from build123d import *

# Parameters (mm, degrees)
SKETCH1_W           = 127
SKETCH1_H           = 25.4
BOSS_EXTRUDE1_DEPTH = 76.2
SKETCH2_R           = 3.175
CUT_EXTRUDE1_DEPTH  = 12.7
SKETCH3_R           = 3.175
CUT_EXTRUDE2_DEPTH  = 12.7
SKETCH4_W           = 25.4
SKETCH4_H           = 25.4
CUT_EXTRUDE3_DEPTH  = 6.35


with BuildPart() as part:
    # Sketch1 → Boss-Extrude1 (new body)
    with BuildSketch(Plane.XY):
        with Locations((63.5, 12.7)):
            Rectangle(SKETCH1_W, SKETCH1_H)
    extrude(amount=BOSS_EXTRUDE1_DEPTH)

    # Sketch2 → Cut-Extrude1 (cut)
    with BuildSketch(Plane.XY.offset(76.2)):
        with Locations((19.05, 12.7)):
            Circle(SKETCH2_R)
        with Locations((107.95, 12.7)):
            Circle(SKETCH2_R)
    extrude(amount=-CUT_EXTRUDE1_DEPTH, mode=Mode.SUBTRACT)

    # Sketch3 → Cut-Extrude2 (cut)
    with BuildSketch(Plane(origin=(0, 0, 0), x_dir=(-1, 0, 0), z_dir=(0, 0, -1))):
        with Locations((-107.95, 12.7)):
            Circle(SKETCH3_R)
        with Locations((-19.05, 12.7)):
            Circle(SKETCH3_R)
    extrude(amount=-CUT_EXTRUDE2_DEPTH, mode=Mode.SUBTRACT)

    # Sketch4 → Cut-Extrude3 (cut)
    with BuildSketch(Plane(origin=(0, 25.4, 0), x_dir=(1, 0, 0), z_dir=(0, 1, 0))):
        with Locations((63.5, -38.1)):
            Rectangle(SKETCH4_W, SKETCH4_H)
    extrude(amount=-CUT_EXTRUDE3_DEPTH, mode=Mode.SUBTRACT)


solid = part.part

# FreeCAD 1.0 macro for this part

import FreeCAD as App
import Part
import Sketcher
Q = App.Units.Quantity

doc = App.newDocument("Part")
body = doc.addObject("PartDesign::Body", "Body")

# Sketch on XY plane
sketch1 = doc.addObject("Sketcher::SketchObject", "Sketch")
body.addObject(sketch1)
sketch1.AttachmentSupport = (doc.XY_Plane, [""])
sketch1.MapMode = "FlatFace"
sketch1.addGeometry([
    Part.LineSegment(App.Vector(0, 25, 0), App.Vector(0, 0, 0)),
    Part.LineSegment(App.Vector(0, 0, 0), App.Vector(127, 0, 0)),
    Part.LineSegment(App.Vector(127, 0, 0), App.Vector(127, 25, 0)),
    Part.LineSegment(App.Vector(127, 25, 0), App.Vector(0, 25, 0)),
], False)
sketch1.addConstraint([
    Sketcher.Constraint("Coincident", 0, 2, 1, 1),
    Sketcher.Constraint("Coincident", 1, 2, 2, 1),
    Sketcher.Constraint("Coincident", 2, 2, 3, 1),
    Sketcher.Constraint("Coincident", 3, 2, 0, 1),
    Sketcher.Constraint("Vertical", 0),
    Sketcher.Constraint("Horizontal", 1),
    Sketcher.Constraint("Vertical", 2),
    Sketcher.Constraint("Horizontal", 3),
    Sketcher.Constraint("Coincident", 0, 2, -1, 1),
    Sketcher.Constraint("DistanceX", 1, 1, 1, 2, Q("5 in")),
    Sketcher.Constraint("DistanceY", 0, 2, 0, 1, Q("1 in")),
])
pad1 = doc.addObject("PartDesign::Pad", "Pad")
body.addObject(pad1)
pad1.Profile = sketch1
pad1.Length = Q("3 in")

# Sketch on XY plane
sketch2 = doc.addObject("Sketcher::SketchObject", "Sketch001")
body.addObject(sketch2)
sketch2.AttachmentSupport = (doc.XY_Plane, [""])
sketch2.MapMode = "FlatFace"
sketch2.AttachmentOffset = App.Placement(App.Vector(0, 0, 3 * 25.4), App.Rotation())
sketch2.addGeometry([
    Part.Circle(App.Vector(19.1, 12.7, 0), App.Vector(0, 0, 1), 3.2),
    Part.Circle(App.Vector(108, 12.7, 0), App.Vector(0, 0, 1), 3.2),
], False)
sketch2.addConstraint([
    Sketcher.Constraint("Equal", 0, 1),
    Sketcher.Constraint("Horizontal", 0, 3, 1, 3),
    Sketcher.Constraint("Diameter", 0, Q("0.25 in")),
    Sketcher.Constraint("DistanceY", -1, 1, 0, 3, Q("0.5 in")),
    Sketcher.Constraint("DistanceX", 0, 3, 1, 3, Q("3.5 in")),
    Sketcher.Constraint("DistanceX", -1, 1, 0, 3, Q("0.75 in")),
])
pocket1 = doc.addObject("PartDesign::Pocket", "Pocket")
body.addObject(pocket1)
pocket1.Profile = sketch2
pocket1.Length = Q("0.5 in")

# Sketch on XY plane
sketch3 = doc.addObject("Sketcher::SketchObject", "Sketch002")
body.addObject(sketch3)
sketch3.AttachmentSupport = (doc.XY_Plane, [""])
sketch3.MapMode = "FlatFace"
sketch3.addGeometry([
    Part.Circle(App.Vector(108, 12.7, 0), App.Vector(0, 0, 1), 3.2),
    Part.Circle(App.Vector(19.1, 12.7, 0), App.Vector(0, 0, 1), 3.2),
], False)
sketch3.addConstraint([
    Sketcher.Constraint("Equal", 0, 1),
    Sketcher.Constraint("Horizontal", 0, 3, 1, 3),
    Sketcher.Constraint("Diameter", 0, Q("0.25 in")),
    Sketcher.Constraint("DistanceY", -1, 1, 0, 3, Q("0.5 in")),
    Sketcher.Constraint("DistanceX", 1, 3, 0, 3, Q("3.5 in")),
    Sketcher.Constraint("DistanceX", -1, 1, 0, 3, Q("4.25 in")),
])
pocket2 = doc.addObject("PartDesign::Pocket", "Pocket001")
body.addObject(pocket2)
pocket2.Profile = sketch3
pocket2.Length = Q("0.5 in")
pocket2.Reversed = True

# Sketch on XZ plane
sketch4 = doc.addObject("Sketcher::SketchObject", "Sketch003")
body.addObject(sketch4)
sketch4.AttachmentSupport = (doc.XZ_Plane, [""])
sketch4.MapMode = "FlatFace"
sketch4.AttachmentOffset = App.Placement(App.Vector(0, 0, -1 * 25.4), App.Rotation())
sketch4.addGeometry([
    Part.LineSegment(App.Vector(51, 25, 0), App.Vector(51, 51, 0)),
    Part.LineSegment(App.Vector(51, 51, 0), App.Vector(76, 51, 0)),
    Part.LineSegment(App.Vector(76, 51, 0), App.Vector(76, 25, 0)),
    Part.LineSegment(App.Vector(76, 25, 0), App.Vector(51, 25, 0)),
], False)
sketch4.addConstraint([
    Sketcher.Constraint("Coincident", 0, 2, 1, 1),
    Sketcher.Constraint("Coincident", 1, 2, 2, 1),
    Sketcher.Constraint("Coincident", 2, 2, 3, 1),
    Sketcher.Constraint("Coincident", 3, 2, 0, 1),
    Sketcher.Constraint("Vertical", 0),
    Sketcher.Constraint("Horizontal", 1),
    Sketcher.Constraint("Vertical", 2),
    Sketcher.Constraint("Horizontal", 3),
    Sketcher.Constraint("Equal", 3, 0),
    Sketcher.Constraint("DistanceX", 1, 1, 1, 2, Q("1 in")),
    Sketcher.Constraint("DistanceX", -1, 1, 0, 2, Q("2 in")),
    Sketcher.Constraint("DistanceY", -1, 1, 0, 2, Q("2 in")),
])
pocket3 = doc.addObject("PartDesign::Pocket", "Pocket002")
body.addObject(pocket3)
pocket3.Profile = sketch4
pocket3.Length = Q("0.25 in")
pocket3.Reversed = True

doc.recompute()
